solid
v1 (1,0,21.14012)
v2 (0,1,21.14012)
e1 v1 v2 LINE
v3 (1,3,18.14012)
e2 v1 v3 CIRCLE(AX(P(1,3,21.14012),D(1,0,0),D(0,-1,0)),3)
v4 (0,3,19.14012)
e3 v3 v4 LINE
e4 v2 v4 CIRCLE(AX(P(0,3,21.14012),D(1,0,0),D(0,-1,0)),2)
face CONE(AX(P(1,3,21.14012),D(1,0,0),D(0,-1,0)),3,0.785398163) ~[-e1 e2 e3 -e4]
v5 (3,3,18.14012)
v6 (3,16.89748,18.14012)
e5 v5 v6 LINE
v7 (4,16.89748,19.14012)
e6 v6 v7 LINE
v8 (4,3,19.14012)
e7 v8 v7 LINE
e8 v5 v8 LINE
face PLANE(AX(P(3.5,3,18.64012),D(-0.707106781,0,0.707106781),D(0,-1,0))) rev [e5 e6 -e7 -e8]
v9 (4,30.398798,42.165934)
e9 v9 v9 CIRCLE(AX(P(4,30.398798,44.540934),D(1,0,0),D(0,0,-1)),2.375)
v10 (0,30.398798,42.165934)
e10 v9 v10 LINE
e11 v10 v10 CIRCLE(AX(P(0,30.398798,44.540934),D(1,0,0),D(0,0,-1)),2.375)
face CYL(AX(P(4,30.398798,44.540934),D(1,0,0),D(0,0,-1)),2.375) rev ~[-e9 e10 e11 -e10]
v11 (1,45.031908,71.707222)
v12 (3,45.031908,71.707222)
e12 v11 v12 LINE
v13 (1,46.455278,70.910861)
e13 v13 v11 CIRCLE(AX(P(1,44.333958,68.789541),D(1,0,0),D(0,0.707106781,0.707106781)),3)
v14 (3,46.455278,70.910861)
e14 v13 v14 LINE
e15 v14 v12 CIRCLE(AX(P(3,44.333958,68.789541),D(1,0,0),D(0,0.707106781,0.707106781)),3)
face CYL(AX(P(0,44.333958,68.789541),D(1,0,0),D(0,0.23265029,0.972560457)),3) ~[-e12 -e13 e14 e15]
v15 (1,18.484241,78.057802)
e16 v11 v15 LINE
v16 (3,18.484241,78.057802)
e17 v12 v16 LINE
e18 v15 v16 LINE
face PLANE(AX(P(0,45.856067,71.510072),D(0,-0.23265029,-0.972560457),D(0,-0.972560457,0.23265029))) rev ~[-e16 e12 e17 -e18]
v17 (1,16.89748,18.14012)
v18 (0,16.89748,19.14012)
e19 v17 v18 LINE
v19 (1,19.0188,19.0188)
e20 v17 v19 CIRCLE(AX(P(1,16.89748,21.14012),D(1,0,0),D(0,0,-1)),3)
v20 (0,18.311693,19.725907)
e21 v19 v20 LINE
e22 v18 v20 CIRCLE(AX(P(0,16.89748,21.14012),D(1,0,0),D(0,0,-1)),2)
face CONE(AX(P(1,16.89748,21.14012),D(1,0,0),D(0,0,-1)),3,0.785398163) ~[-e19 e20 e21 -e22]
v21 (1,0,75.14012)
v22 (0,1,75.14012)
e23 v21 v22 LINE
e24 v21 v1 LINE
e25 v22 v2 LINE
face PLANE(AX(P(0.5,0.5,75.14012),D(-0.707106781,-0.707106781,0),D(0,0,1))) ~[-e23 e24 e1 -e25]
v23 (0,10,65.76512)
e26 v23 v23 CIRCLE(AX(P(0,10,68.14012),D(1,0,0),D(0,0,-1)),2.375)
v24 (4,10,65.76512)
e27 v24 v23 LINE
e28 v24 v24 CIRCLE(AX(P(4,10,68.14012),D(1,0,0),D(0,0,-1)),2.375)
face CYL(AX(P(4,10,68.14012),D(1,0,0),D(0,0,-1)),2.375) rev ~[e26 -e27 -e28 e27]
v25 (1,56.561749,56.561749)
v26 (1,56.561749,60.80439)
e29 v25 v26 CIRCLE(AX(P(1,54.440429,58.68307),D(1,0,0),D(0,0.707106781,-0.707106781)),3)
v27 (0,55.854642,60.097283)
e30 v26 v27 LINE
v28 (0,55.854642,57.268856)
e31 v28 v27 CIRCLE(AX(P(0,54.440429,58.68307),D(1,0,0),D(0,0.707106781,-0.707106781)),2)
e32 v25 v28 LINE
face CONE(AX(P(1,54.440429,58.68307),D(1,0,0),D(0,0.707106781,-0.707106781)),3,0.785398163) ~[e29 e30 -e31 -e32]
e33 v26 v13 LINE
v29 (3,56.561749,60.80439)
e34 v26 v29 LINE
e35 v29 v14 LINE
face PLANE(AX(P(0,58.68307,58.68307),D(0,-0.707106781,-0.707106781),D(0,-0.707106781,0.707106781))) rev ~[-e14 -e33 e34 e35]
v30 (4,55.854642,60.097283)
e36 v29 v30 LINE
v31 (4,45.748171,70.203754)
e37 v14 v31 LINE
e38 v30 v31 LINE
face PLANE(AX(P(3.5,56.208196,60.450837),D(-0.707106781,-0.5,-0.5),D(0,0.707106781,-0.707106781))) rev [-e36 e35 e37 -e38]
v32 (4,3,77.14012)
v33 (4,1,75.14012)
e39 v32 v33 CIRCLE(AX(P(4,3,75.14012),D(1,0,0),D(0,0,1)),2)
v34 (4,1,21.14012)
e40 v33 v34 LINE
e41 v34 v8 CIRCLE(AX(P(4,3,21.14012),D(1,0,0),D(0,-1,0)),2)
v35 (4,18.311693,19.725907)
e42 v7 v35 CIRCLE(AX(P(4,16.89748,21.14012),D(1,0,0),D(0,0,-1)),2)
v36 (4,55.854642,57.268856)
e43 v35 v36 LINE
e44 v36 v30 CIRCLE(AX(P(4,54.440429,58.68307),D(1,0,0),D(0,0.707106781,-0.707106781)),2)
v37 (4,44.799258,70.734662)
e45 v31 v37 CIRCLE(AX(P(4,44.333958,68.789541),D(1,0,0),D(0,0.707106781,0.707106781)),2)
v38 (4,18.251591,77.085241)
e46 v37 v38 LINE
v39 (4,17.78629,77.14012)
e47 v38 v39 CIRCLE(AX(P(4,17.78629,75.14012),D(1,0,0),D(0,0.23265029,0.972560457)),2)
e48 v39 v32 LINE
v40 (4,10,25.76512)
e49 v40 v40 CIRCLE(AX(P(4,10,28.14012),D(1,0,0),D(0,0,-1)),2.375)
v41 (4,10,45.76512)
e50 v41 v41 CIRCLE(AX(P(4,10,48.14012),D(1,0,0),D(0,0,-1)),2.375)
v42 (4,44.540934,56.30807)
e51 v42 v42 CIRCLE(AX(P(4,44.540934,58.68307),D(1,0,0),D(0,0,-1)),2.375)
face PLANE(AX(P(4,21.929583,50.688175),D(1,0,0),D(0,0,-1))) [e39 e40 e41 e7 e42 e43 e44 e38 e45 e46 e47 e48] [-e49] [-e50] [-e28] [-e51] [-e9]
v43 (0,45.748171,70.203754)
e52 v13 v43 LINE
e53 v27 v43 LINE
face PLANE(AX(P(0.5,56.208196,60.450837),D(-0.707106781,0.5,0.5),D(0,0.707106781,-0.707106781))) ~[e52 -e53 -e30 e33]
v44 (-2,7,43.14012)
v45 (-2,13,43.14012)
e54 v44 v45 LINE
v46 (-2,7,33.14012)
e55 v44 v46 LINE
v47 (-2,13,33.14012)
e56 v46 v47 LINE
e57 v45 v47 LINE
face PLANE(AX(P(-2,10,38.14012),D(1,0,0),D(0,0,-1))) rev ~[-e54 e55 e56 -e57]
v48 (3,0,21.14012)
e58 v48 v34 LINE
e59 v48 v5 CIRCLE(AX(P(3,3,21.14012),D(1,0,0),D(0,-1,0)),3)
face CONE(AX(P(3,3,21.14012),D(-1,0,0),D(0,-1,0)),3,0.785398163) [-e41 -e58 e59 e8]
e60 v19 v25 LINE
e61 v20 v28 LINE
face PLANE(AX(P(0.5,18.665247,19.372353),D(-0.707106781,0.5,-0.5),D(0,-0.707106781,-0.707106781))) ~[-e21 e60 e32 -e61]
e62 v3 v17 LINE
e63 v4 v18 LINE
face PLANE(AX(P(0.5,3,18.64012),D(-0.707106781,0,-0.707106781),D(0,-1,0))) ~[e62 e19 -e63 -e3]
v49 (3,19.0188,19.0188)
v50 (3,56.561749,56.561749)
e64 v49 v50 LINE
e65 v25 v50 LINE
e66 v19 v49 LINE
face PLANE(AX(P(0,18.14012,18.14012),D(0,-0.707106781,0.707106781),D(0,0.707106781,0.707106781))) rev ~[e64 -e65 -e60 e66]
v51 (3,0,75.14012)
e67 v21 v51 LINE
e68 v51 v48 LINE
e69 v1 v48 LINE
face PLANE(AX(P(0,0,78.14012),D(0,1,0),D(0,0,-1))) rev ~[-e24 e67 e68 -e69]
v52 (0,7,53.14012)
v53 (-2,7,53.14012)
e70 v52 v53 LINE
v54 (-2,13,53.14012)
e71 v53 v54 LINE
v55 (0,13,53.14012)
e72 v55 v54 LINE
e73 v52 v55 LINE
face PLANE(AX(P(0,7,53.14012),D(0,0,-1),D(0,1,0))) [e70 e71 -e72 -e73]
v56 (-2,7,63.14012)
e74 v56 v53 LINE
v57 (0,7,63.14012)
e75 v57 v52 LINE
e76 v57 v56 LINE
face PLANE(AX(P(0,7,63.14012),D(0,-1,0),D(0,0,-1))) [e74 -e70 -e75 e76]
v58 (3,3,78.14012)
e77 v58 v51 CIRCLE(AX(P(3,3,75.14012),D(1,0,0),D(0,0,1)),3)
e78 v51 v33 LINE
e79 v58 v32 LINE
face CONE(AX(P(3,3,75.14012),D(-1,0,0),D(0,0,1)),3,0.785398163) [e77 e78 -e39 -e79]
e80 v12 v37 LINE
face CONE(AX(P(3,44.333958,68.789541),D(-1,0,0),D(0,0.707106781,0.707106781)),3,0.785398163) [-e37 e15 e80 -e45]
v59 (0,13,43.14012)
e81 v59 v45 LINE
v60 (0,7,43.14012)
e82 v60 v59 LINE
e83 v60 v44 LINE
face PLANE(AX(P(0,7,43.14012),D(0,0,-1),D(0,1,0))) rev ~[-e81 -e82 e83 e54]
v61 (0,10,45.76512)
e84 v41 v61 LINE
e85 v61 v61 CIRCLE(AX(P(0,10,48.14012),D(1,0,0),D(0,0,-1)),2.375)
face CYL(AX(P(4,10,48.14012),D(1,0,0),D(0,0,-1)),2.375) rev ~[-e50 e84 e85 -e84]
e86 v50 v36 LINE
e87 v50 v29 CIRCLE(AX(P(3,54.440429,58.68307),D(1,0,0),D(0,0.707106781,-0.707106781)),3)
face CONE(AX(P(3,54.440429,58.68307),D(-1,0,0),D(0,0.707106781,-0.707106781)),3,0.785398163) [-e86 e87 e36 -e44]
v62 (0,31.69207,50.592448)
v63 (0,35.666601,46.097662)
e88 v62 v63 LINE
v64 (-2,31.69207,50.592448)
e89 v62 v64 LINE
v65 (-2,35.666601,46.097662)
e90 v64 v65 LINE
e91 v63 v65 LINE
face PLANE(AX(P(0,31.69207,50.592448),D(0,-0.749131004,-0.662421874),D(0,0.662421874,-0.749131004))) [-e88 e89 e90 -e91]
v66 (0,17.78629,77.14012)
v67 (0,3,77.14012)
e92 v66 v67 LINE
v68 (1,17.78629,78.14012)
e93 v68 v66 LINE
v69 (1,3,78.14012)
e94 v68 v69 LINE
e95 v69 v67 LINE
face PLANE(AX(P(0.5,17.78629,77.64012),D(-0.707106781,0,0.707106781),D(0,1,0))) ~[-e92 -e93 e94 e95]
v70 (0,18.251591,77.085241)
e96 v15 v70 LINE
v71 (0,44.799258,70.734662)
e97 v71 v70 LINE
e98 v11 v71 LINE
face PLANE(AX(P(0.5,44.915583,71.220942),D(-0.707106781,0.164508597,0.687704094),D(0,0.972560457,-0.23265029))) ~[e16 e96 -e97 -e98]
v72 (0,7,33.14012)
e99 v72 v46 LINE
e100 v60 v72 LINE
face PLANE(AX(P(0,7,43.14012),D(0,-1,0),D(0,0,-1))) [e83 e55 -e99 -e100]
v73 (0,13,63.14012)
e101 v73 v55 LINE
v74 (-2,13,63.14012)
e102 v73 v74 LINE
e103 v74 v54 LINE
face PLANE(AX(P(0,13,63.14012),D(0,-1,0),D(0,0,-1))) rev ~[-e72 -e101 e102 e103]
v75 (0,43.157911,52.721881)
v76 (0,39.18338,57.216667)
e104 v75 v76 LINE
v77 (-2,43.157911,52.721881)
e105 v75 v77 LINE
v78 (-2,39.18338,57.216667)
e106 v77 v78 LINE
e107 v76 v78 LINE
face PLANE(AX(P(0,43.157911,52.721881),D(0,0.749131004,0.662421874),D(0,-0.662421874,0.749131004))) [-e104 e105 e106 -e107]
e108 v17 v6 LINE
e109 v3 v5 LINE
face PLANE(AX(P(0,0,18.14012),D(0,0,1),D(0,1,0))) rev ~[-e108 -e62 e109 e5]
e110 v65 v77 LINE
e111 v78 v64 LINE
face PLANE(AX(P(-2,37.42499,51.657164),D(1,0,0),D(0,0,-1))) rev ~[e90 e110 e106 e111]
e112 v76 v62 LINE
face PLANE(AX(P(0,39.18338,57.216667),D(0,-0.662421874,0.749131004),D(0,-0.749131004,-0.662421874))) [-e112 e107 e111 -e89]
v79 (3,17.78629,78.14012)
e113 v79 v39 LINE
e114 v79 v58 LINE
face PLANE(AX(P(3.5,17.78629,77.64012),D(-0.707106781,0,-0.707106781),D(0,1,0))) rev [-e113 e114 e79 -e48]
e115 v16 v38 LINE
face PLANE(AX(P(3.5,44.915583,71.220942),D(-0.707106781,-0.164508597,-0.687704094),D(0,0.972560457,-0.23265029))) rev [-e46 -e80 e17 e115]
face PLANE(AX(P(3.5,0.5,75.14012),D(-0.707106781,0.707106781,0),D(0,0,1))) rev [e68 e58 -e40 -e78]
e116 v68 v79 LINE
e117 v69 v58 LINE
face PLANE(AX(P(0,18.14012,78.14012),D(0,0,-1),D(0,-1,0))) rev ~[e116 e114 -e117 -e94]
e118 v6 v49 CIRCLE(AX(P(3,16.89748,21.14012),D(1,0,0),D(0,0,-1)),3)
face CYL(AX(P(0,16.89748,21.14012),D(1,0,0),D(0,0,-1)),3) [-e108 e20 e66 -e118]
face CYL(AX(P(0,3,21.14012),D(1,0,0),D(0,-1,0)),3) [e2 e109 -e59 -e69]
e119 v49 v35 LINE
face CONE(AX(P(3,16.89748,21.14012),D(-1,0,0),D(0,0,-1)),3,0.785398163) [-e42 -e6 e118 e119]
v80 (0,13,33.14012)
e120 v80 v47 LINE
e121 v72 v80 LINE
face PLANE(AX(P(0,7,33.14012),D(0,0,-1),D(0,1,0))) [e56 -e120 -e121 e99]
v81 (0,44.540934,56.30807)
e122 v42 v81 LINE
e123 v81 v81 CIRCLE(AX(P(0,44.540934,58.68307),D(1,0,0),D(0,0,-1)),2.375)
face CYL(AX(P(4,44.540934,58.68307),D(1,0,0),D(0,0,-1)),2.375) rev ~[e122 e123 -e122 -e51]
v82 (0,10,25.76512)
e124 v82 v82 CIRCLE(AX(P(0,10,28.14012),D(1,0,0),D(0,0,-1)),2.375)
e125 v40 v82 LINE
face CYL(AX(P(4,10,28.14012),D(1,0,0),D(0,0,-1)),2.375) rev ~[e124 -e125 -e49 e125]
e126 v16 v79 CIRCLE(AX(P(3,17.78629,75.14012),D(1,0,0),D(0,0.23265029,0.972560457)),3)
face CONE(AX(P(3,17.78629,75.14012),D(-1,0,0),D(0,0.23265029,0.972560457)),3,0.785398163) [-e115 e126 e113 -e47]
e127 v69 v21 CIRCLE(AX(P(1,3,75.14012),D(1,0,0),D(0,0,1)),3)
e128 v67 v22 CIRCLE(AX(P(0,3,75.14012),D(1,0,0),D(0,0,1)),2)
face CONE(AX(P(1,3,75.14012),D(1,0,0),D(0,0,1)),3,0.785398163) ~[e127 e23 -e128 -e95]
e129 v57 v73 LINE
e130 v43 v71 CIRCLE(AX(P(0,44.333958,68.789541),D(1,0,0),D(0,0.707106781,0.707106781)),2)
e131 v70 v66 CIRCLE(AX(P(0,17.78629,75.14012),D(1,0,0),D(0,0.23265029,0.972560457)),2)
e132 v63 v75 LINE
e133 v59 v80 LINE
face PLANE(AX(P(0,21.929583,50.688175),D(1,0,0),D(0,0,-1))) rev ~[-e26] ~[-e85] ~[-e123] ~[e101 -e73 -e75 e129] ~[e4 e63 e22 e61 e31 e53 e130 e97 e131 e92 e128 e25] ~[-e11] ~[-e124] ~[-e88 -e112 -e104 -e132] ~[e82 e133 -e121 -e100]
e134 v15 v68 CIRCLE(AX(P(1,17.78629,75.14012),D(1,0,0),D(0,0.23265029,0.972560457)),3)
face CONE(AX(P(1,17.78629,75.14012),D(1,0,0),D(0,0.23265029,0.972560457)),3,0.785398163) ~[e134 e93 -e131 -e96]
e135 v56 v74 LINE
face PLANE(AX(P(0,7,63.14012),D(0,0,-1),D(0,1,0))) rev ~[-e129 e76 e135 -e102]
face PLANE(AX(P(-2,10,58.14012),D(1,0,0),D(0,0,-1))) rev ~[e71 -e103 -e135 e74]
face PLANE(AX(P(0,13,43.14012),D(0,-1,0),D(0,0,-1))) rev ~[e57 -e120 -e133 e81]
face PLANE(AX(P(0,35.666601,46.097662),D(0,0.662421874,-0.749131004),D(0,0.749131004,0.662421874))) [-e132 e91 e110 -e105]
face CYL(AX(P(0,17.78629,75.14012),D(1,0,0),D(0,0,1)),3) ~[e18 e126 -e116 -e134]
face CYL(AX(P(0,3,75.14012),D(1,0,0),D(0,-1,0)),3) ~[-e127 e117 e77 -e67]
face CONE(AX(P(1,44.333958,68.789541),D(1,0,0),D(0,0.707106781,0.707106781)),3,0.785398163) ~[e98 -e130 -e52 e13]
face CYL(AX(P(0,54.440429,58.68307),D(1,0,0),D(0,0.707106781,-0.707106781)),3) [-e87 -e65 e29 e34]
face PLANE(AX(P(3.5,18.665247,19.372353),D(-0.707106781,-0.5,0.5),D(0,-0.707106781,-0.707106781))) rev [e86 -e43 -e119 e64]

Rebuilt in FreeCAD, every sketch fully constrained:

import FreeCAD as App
import Part
import Sketcher
from FreeCAD import Vector
Q = App.Units.Quantity


def edges_at(feature, points):
    """Names of the edges that pass closest to the given points."""
    edges = feature.Shape.Edges
    near = lambda p: min(range(len(edges)), key=lambda i: edges[i].distToShape(Part.Vertex(*p))[0])
    return sorted({f"Edge{near(p) + 1}" for p in points})

doc = App.newDocument("Part")
body = doc.addObject("PartDesign::Body", "Body")

sketch1 = body.newObject("Sketcher::SketchObject", "Sketch")
sketch1.AttachmentSupport = (doc.getObject("YZ_Plane"), [""])
sketch1.MapMode = "FlatFace"
sketch1.addGeometry(Part.LineSegment(Vector(0, 78.14012, 0), Vector(0, 18.14012, 0)), False)
sketch1.addGeometry(Part.LineSegment(Vector(0, 18.14012, 0), Vector(18.14012, 18.14012, 0)), False)
sketch1.addGeometry(Part.LineSegment(Vector(18.14012, 18.14012, 0), Vector(58.68307, 58.68307, 0)), False)
sketch1.addGeometry(Part.LineSegment(Vector(58.68307, 58.68307, 0), Vector(45.856067, 71.510072, 0)), False)
sketch1.addGeometry(Part.LineSegment(Vector(45.856067, 71.510072, 0), Vector(18.14012, 78.14012, 0)), False)
sketch1.addGeometry(Part.LineSegment(Vector(18.14012, 78.14012, 0), Vector(0, 78.14012, 0)), False)
sketch1.addConstraint(Sketcher.Constraint("Coincident", 0, 2, 1, 1))
sketch1.addConstraint(Sketcher.Constraint("Coincident", 1, 2, 2, 1))
sketch1.addConstraint(Sketcher.Constraint("Coincident", 2, 2, 3, 1))
sketch1.addConstraint(Sketcher.Constraint("Coincident", 3, 2, 4, 1))
sketch1.addConstraint(Sketcher.Constraint("Coincident", 4, 2, 5, 1))
sketch1.addConstraint(Sketcher.Constraint("Coincident", 5, 2, 0, 1))
sketch1.addConstraint(Sketcher.Constraint("Vertical", 0))
sketch1.addConstraint(Sketcher.Constraint("Horizontal", 1))
sketch1.addConstraint(Sketcher.Constraint("Horizontal", 5))
sketch1.addConstraint(Sketcher.Constraint("PointOnObject", 0, 2, -2))
sketch1.addConstraint(Sketcher.Constraint("Perpendicular", 2, 3))
sketch1.addConstraint(Sketcher.Constraint("Vertical", 1, 2, 4, 2))
sketch1.addConstraint(Sketcher.Constraint("DistanceY", 0, 2, 0, 1, Q("60 mm")))
sketch1.addConstraint(Sketcher.Constraint("Angle", 2, Q("45 deg")))
sketch1.addConstraint(Sketcher.Constraint("DistanceX", 1, 1, 1, 2, Q("18.14012 mm")))
sketch1.addConstraint(Sketcher.Constraint("Distance", 2, Q("57.336389 mm")))
sketch1.addConstraint(Sketcher.Constraint("Distance", 3, Q("18.14012 mm")))
sketch1.addConstraint(Sketcher.Constraint("DistanceY", -1, 1, 0, 2, Q("18.14012 mm")))
pad1 = body.newObject("PartDesign::Pad", "Pad")
pad1.Profile = sketch1
pad1.Length = 4

sketch2 = body.newObject("Sketcher::SketchObject", "Sketch001")
sketch2.AttachmentSupport = (doc.getObject("YZ_Plane"), [""])
sketch2.MapMode = "FlatFace"
sketch2.AttachmentOffset = App.Placement(Vector(0, 0, 4), App.Rotation())
sketch2.addGeometry(Part.Circle(Vector(10, 28.14012, 0), Vector(0, 0, 1), 2.375), False)
sketch2.addConstraint(Sketcher.Constraint("Diameter", 0, Q("4.75 mm")))
sketch2.addConstraint(Sketcher.Constraint("DistanceX", -1, 1, 0, 3, Q("10 mm")))
sketch2.addConstraint(Sketcher.Constraint("DistanceY", -1, 1, 0, 3, Q("28.14012 mm")))
pocket1 = body.newObject("PartDesign::Pocket", "Pocket")
pocket1.Profile = sketch2
pocket1.Type = "ThroughAll"
doc.recompute()

linearpattern = body.newObject("PartDesign::LinearPattern", "LinearPattern")
linearpattern.Originals = [pocket1]
linearpattern.Direction = (doc.getObject("Z_Axis"), [""])
linearpattern.Mode = "offset"
linearpattern.Offset = 20
linearpattern.Occurrences = 3
body.Tip = linearpattern

sketch3 = body.newObject("Sketcher::SketchObject", "Sketch002")
sketch3.AttachmentSupport = (doc.getObject("YZ_Plane"), [""])
sketch3.MapMode = "FlatFace"
sketch3.AttachmentOffset = App.Placement(Vector(0, 0, 4), App.Rotation())
sketch3.addGeometry(Part.Circle(Vector(44.540934, 58.68307, 0), Vector(0, 0, 1), 2.375), False)
sketch3.addConstraint(Sketcher.Constraint("Diameter", 0, Q("4.75 mm")))
sketch3.addConstraint(Sketcher.Constraint("DistanceY", -1, 1, 0, 3, Q("58.68307 mm")))
sketch3.addConstraint(Sketcher.Constraint("DistanceX", -1, 1, 0, 3, Q("44.540934 mm")))
pocket2 = body.newObject("PartDesign::Pocket", "Pocket001")
pocket2.Profile = sketch3
pocket2.Type = "ThroughAll"
doc.recompute()

datumline = body.newObject("PartDesign::Line", "DatumLine")
datumline.Placement = App.Placement(Vector(0, 0, 0), App.Rotation(Vector(0, 0, 1), Vector(0, -0.707106781, -0.707106781)))
linearpattern2 = body.newObject("PartDesign::LinearPattern", "LinearPattern001")
linearpattern2.Originals = [pocket2]
linearpattern2.Direction = (datumline, [""])
linearpattern2.Mode = "offset"
linearpattern2.Offset = 20
linearpattern2.Occurrences = 2
body.Tip = linearpattern2
doc.recompute()

fillet = body.newObject("PartDesign::Fillet", "Fillet")
fillet.Base = (linearpattern2, edges_at(linearpattern2, [
    (2, 18.14, 78.14),
    (2, 45.856, 71.51),
    (2, 58.683, 58.683),
    (2, 18.14, 18.14),
    (2, 0, 18.14),
    (2, 0, 78.14),
]))
fillet.Radius = 3
doc.recompute()

chamfer = body.newObject("PartDesign::Chamfer", "Chamfer")
chamfer.Base = (fillet, edges_at(fillet, [
    (0, 0, 48.14),
    (4, 0, 48.14),
    (0, 10.393, 78.14),
    (0, 31.758, 74.883),
    (0, 51.509, 65.858),
    (0, 37.79, 37.79),
    (0, 9.949, 18.14),
    (0, 57.44, 58.683),
    (0, 18.046, 18.368),
    (0, 0.879, 19.019),
    (0, 45.799, 71.408),
    (0, 18.138, 78.119),
    (0, 0.879, 77.261),
    (4, 10.393, 78.14),
    (4, 9.949, 18.14),
    (4, 37.79, 37.79),
    (4, 51.509, 65.858),
    (4, 31.758, 74.883),
    (4, 57.44, 58.683),
    (4, 18.046, 18.368),
    (4, 0.879, 19.019),
    (4, 45.799, 71.408),
    (4, 18.138, 78.119),
    (4, 0.879, 77.261),
]))
chamfer.Size = 1

sketch4 = body.newObject("Sketcher::SketchObject", "Sketch003")
sketch4.AttachmentSupport = (doc.getObject("YZ_Plane"), [""])
sketch4.MapMode = "FlatFace"
sketch4.addGeometry(Part.LineSegment(Vector(39.18338, 57.216667, 0), Vector(31.69207, 50.592448, 0)), False)
sketch4.addGeometry(Part.LineSegment(Vector(31.69207, 50.592448, 0), Vector(35.666601, 46.097662, 0)), False)
sketch4.addGeometry(Part.LineSegment(Vector(35.666601, 46.097662, 0), Vector(43.157911, 52.721881, 0)), False)
sketch4.addGeometry(Part.LineSegment(Vector(43.157911, 52.721881, 0), Vector(39.18338, 57.216667, 0)), False)
sketch4.addGeometry(Part.LineSegment(Vector(13, 63.14012, 0), Vector(7, 63.14012, 0)), False)
sketch4.addGeometry(Part.LineSegment(Vector(7, 63.14012, 0), Vector(7, 53.14012, 0)), False)
sketch4.addGeometry(Part.LineSegment(Vector(7, 53.14012, 0), Vector(13, 53.14012, 0)), False)
sketch4.addGeometry(Part.LineSegment(Vector(13, 53.14012, 0), Vector(13, 63.14012, 0)), False)
sketch4.addGeometry(Part.LineSegment(Vector(13, 43.14012, 0), Vector(7, 43.14012, 0)), False)
sketch4.addGeometry(Part.LineSegment(Vector(7, 43.14012, 0), Vector(7, 33.14012, 0)), False)
sketch4.addGeometry(Part.LineSegment(Vector(7, 33.14012, 0), Vector(13, 33.14012, 0)), False)
sketch4.addGeometry(Part.LineSegment(Vector(13, 33.14012, 0), Vector(13, 43.14012, 0)), False)
sketch4.addConstraint(Sketcher.Constraint("Coincident", 0, 2, 1, 1))
sketch4.addConstraint(Sketcher.Constraint("Coincident", 1, 2, 2, 1))
sketch4.addConstraint(Sketcher.Constraint("Coincident", 2, 2, 3, 1))
sketch4.addConstraint(Sketcher.Constraint("Coincident", 3, 2, 0, 1))
sketch4.addConstraint(Sketcher.Constraint("Coincident", 4, 2, 5, 1))
sketch4.addConstraint(Sketcher.Constraint("Coincident", 5, 2, 6, 1))
sketch4.addConstraint(Sketcher.Constraint("Coincident", 6, 2, 7, 1))
sketch4.addConstraint(Sketcher.Constraint("Coincident", 7, 2, 4, 1))
sketch4.addConstraint(Sketcher.Constraint("Coincident", 8, 2, 9, 1))
sketch4.addConstraint(Sketcher.Constraint("Coincident", 9, 2, 10, 1))
sketch4.addConstraint(Sketcher.Constraint("Coincident", 10, 2, 11, 1))
sketch4.addConstraint(Sketcher.Constraint("Coincident", 11, 2, 8, 1))
sketch4.addConstraint(Sketcher.Constraint("Horizontal", 4))
sketch4.addConstraint(Sketcher.Constraint("Vertical", 5))
sketch4.addConstraint(Sketcher.Constraint("Horizontal", 6))
sketch4.addConstraint(Sketcher.Constraint("Vertical", 7))
sketch4.addConstraint(Sketcher.Constraint("Horizontal", 8))
sketch4.addConstraint(Sketcher.Constraint("Vertical", 9))
sketch4.addConstraint(Sketcher.Constraint("Horizontal", 10))
sketch4.addConstraint(Sketcher.Constraint("Vertical", 11))
sketch4.addConstraint(Sketcher.Constraint("Perpendicular", 0, 1))
sketch4.addConstraint(Sketcher.Constraint("Perpendicular", 1, 2))
sketch4.addConstraint(Sketcher.Constraint("Perpendicular", 2, 3))
sketch4.addConstraint(Sketcher.Constraint("Vertical", 5, 2, 8, 2))
sketch4.addConstraint(Sketcher.Constraint("Vertical", 7, 2, 10, 2))
sketch4.addConstraint(Sketcher.Constraint("Equal", 7, 9))
sketch4.addConstraint(Sketcher.Constraint("DistanceX", 4, 2, 4, 1, Q("6 mm")))
sketch4.addConstraint(Sketcher.Constraint("DistanceY", 5, 2, 5, 1, Q("10 mm")))
sketch4.addConstraint(Sketcher.Constraint("Distance", 0, Q("10 mm")))
sketch4.addConstraint(Sketcher.Constraint("Distance", 1, Q("6 mm")))
sketch4.addConstraint(Sketcher.Constraint("DistanceX", -1, 1, 4, 2, Q("7 mm")))
sketch4.addConstraint(Sketcher.Constraint("DistanceY", 8, 2, 5, 2, Q("10 mm")))
sketch4.addConstraint(Sketcher.Constraint("DistanceX", -1, 1, 1, 2, Q("35.666601 mm")))
sketch4.addConstraint(Sketcher.Constraint("DistanceX", -1, 1, 0, 2, Q("31.69207 mm")))
sketch4.addConstraint(Sketcher.Constraint("DistanceY", -1, 1, 1, 2, Q("46.097662 mm")))
sketch4.addConstraint(Sketcher.Constraint("DistanceY", -1, 1, 4, 2, Q("63.14012 mm")))
pad2 = body.newObject("PartDesign::Pad", "Pad001")
pad2.Profile = sketch4
pad2.Length = 2
pad2.Reversed = True

doc.recompute()
